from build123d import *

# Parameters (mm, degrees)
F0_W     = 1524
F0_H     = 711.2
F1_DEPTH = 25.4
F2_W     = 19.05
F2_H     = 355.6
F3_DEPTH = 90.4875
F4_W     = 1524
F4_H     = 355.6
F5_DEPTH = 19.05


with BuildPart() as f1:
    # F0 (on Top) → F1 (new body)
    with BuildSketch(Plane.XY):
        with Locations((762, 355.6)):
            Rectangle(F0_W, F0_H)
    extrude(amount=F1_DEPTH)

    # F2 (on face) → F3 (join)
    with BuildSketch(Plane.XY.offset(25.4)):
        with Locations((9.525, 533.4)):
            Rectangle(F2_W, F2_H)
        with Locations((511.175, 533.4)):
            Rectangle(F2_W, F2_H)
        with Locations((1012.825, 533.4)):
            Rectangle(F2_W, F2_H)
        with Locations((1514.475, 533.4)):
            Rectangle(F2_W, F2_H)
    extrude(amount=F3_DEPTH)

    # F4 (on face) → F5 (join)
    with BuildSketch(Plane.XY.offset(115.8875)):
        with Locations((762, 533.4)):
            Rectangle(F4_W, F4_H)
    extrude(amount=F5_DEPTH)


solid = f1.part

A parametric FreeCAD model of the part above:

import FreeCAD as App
import Part
import Sketcher

V = App.Vector
Q = App.Units.Quantity


def add_polygon(sketch, points):
    """Adds a closed chain of lines whose ends are joined by coincident constraints."""
    first, n = sketch.GeometryCount, len(points)
    for a, b in zip(points, points[1:] + points[:1]):
        sketch.addGeometry(Part.LineSegment(App.Vector(*a, 0), App.Vector(*b, 0)), False)
    for i in range(n):
        sketch.addConstraint(Sketcher.Constraint("Coincident", first + i, 2, first + (i + 1) % n, 1))

doc = App.newDocument("Part")
params = doc.addObject("Spreadsheet::Sheet", "Params")
for row, (alias, value) in enumerate([
    ("sketch1_width", "60 in"),
    ("sketch1_height", "28 in"),
    ("pad1_length", "1 in"),
    ("sketch2_height", "14 in"),
    ("pad2_length", "3.5625 in"),
    ("sketch3_width", "60 in"),
    ("sketch3_height", "14 in"),
    ("pad3_length", "0.75 in"),
], start=1):
    params.set(f"A{row}", alias)
    params.set(f"B{row}", "=" + value)
    params.setAlias(f"B{row}", alias)

body = doc.addObject("PartDesign::Body", "Body")

sketch1 = body.newObject("Sketcher::SketchObject", "Sketch")
sketch1.AttachmentSupport = (doc.getObject("XY_Plane"), [""])
sketch1.MapMode = "FlatFace"
add_polygon(sketch1, [(0, 711), (0, 0), (1524, 0), (1524, 711)])
sketch1.addConstraint(Sketcher.Constraint("Vertical", 0))
sketch1.addConstraint(Sketcher.Constraint("Horizontal", 1))
sketch1.addConstraint(Sketcher.Constraint("Vertical", 2))
sketch1.addConstraint(Sketcher.Constraint("Horizontal", 3))
sketch1.addConstraint(Sketcher.Constraint("Coincident", 0, 2, -1, 1))
sketch1.addConstraint(Sketcher.Constraint("DistanceX", 1, 1, 1, 2, Q("60 in")))
sketch1.addConstraint(Sketcher.Constraint("DistanceY", 0, 2, 0, 1, Q("28 in")))
sketch1.setExpression("Constraints[9]", "Params.sketch1_width")
sketch1.setExpression("Constraints[10]", "Params.sketch1_height")
pad1 = body.newObject("PartDesign::Pad", "Pad")
pad1.Profile = sketch1
pad1.setExpression("Length", "Params.pad1_length")

sketch2 = body.newObject("Sketcher::SketchObject", "Sketch001")
sketch2.AttachmentSupport = (doc.getObject("XY_Plane"), [""])
sketch2.MapMode = "FlatFace"
sketch2.AttachmentOffset = App.Placement(V(0, 0, 1 * 25.4), App.Rotation())
add_polygon(sketch2, [(0, 711), (0, 356), (19, 356), (19, 711)])
add_polygon(sketch2, [(502, 711), (502, 356), (521, 356), (521, 711)])
add_polygon(sketch2, [(1003, 711), (1003, 356), (1022, 356), (1022, 711)])
add_polygon(sketch2, [(1505, 711), (1505, 356), (1524, 356), (1524, 711)])
sketch2.addConstraint(Sketcher.Constraint("Vertical", 0))
sketch2.addConstraint(Sketcher.Constraint("Horizontal", 1))
sketch2.addConstraint(Sketcher.Constraint("Vertical", 2))
sketch2.addConstraint(Sketcher.Constraint("Horizontal", 3))
sketch2.addConstraint(Sketcher.Constraint("Vertical", 4))
sketch2.addConstraint(Sketcher.Constraint("Horizontal", 5))
sketch2.addConstraint(Sketcher.Constraint("Vertical", 6))
sketch2.addConstraint(Sketcher.Constraint("Horizontal", 7))
sketch2.addConstraint(Sketcher.Constraint("Vertical", 8))
sketch2.addConstraint(Sketcher.Constraint("Horizontal", 9))
sketch2.addConstraint(Sketcher.Constraint("Vertical", 10))
sketch2.addConstraint(Sketcher.Constraint("Horizontal", 11))
sketch2.addConstraint(Sketcher.Constraint("Vertical", 12))
sketch2.addConstraint(Sketcher.Constraint("Horizontal", 13))
sketch2.addConstraint(Sketcher.Constraint("Vertical", 14))
sketch2.addConstraint(Sketcher.Constraint("Horizontal", 15))
sketch2.addConstraint(Sketcher.Constraint("PointOnObject", 0, 2, -2))
sketch2.addConstraint(Sketcher.Constraint("Horizontal", 1, 2, 4, 2))
sketch2.addConstraint(Sketcher.Constraint("Horizontal", 3, 2, 6, 2))
sketch2.addConstraint(Sketcher.Constraint("Horizontal", 5, 2, 8, 2))
sketch2.addConstraint(Sketcher.Constraint("Horizontal", 7, 2, 10, 2))
sketch2.addConstraint(Sketcher.Constraint("Horizontal", 9, 2, 12, 2))
sketch2.addConstraint(Sketcher.Constraint("Horizontal", 11, 2, 14, 2))
sketch2.addConstraint(Sketcher.Constraint("Equal", 3, 5))
sketch2.addConstraint(Sketcher.Constraint("Equal", 7, 9))
sketch2.addConstraint(Sketcher.Constraint("Equal", 11, 13))
sketch2.addConstraint(Sketcher.Constraint("DistanceY", 0, 2, 0, 1, Q("14 in")))
sketch2.addConstraint(Sketcher.Constraint("DistanceY", -1, 1, 0, 2, Q("14 in")))
sketch2.addConstraint(Sketcher.Constraint("DistanceX", -1, 1, 13, 2, Q("60 in")))
sketch2.addConstraint(Sketcher.Constraint("DistanceX", 1, 2, 4, 2, Q("19 in")))
sketch2.addConstraint(Sketcher.Constraint("DistanceX", 5, 2, 8, 2, Q("19 in")))
sketch2.addConstraint(Sketcher.Constraint("DistanceX", 9, 2, 12, 2, Q("19 in")))
sketch2.setExpression("Constraints[42]", "Params.sketch2_height")
pad2 = body.newObject("PartDesign::Pad", "Pad001")
pad2.Profile = sketch2
pad2.setExpression("Length", "Params.pad2_length")

sketch3 = body.newObject("Sketcher::SketchObject", "Sketch002")
sketch3.AttachmentSupport = (doc.getObject("XY_Plane"), [""])
sketch3.MapMode = "FlatFace"
sketch3.AttachmentOffset = App.Placement(V(0, 0, 4.5625 * 25.4), App.Rotation())
add_polygon(sketch3, [(0, 711), (0, 356), (1524, 356), (1524, 711)])
sketch3.addConstraint(Sketcher.Constraint("Vertical", 0))
sketch3.addConstraint(Sketcher.Constraint("Horizontal", 1))
sketch3.addConstraint(Sketcher.Constraint("Vertical", 2))
sketch3.addConstraint(Sketcher.Constraint("Horizontal", 3))
sketch3.addConstraint(Sketcher.Constraint("PointOnObject", 0, 2, -2))
sketch3.addConstraint(Sketcher.Constraint("DistanceX", 1, 1, 1, 2, Q("60 in")))
sketch3.addConstraint(Sketcher.Constraint("DistanceY", 0, 2, 0, 1, Q("14 in")))
sketch3.addConstraint(Sketcher.Constraint("DistanceY", -1, 1, 0, 2, Q("14 in")))
sketch3.setExpression("Constraints[9]", "Params.sketch3_width")
sketch3.setExpression("Constraints[10]", "Params.sketch3_height")
pad3 = body.newObject("PartDesign::Pad", "Pad002")
pad3.Profile = sketch3
pad3.setExpression("Length", "Params.pad3_length")

doc.recompute()
